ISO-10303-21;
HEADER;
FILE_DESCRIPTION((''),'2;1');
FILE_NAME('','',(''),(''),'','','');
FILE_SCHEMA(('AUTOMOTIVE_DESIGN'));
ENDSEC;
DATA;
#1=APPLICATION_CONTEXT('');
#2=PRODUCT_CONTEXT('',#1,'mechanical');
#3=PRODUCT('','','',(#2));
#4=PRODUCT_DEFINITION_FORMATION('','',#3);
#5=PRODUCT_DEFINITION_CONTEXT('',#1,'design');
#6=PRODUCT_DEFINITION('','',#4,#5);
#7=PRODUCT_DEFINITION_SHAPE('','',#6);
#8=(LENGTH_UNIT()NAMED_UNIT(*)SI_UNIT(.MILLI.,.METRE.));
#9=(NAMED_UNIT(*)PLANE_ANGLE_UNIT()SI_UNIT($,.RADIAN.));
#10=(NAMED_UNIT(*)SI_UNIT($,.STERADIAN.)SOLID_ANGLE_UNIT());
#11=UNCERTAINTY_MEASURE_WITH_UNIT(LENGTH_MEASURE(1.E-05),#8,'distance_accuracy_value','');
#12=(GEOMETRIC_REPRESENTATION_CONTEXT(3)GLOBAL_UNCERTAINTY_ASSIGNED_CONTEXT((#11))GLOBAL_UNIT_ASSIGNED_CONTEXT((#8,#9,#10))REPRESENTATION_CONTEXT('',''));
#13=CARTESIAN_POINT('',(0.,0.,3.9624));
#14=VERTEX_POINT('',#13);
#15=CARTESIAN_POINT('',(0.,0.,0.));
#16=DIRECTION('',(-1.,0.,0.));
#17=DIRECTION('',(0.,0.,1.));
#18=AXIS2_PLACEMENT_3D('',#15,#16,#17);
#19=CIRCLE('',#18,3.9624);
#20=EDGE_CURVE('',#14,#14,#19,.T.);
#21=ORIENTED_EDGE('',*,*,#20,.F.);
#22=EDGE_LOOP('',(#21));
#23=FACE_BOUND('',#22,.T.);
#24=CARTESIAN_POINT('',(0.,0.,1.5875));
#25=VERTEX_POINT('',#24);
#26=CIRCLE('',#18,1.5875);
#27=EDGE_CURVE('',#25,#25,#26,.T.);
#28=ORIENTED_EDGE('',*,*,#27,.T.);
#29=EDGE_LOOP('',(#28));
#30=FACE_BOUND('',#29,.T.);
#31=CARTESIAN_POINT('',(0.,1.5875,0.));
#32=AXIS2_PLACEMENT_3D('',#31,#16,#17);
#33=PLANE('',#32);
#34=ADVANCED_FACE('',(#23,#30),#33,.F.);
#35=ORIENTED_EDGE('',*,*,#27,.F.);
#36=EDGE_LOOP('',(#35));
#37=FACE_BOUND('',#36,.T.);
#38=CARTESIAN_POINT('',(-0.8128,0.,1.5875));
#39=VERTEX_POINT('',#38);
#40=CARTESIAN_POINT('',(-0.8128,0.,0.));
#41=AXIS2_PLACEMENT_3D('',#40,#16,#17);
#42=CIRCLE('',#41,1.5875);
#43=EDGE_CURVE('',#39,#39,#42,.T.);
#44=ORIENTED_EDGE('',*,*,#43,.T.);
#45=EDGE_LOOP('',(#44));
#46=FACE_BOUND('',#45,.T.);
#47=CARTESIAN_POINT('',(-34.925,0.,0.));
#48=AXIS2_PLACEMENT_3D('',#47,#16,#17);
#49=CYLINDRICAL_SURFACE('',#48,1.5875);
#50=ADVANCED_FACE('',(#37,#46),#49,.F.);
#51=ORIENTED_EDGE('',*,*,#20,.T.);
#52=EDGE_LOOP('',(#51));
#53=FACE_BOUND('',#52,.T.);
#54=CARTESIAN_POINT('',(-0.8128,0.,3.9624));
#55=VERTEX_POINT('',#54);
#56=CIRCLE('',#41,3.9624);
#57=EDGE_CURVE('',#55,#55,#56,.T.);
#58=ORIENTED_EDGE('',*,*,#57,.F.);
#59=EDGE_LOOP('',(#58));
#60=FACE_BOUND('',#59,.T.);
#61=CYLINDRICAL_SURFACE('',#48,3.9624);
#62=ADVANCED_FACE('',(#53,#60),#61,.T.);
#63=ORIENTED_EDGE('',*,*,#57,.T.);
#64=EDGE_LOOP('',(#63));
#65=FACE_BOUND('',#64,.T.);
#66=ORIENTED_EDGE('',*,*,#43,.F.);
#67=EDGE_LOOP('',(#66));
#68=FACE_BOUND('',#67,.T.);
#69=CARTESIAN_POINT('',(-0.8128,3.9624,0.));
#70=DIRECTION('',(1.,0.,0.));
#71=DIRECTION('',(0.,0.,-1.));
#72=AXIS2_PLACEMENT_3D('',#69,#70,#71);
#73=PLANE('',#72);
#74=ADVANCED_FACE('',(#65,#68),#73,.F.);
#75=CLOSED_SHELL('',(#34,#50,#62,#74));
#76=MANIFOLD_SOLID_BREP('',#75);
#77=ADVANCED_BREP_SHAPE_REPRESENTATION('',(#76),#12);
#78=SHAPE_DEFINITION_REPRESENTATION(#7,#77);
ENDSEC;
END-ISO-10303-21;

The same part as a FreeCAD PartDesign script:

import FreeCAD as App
import Part
import Sketcher
Q = App.Units.Quantity


def add_polygon(sketch, points):
    """Adds a closed chain of lines whose ends are joined by coincident constraints."""
    first, n = sketch.GeometryCount, len(points)
    for a, b in zip(points, points[1:] + points[:1]):
        sketch.addGeometry(Part.LineSegment(App.Vector(*a, 0), App.Vector(*b, 0)), False)
    for i in range(n):
        sketch.addConstraint(Sketcher.Constraint("Coincident", first + i, 2, first + (i + 1) % n, 1))

doc = App.newDocument("Part")
params = doc.addObject("Spreadsheet::Sheet", "Params")
for row, (alias, value) in enumerate([
    ("sketch1_width", "0.032 in"),
    ("revolution_angle", "360 deg"),
], start=1):
    params.set(f"A{row}", alias)
    params.set(f"B{row}", "=" + value)
    params.setAlias(f"B{row}", alias)

body = doc.addObject("PartDesign::Body", "Body")

# Sketch on XY plane
sketch1 = body.newObject("Sketcher::SketchObject", "Sketch")
sketch1.AttachmentSupport = (doc.getObject("XY_Plane"), [""])
sketch1.MapMode = "FlatFace"
add_polygon(sketch1, [(-0.8128, 3.9624), (-0.8128, 1.5875), (0, 1.5875), (0, 3.9624)])  # lines 0-3
sketch1.addConstraint(Sketcher.Constraint("Vertical", 0))
sketch1.addConstraint(Sketcher.Constraint("Horizontal", 1))
sketch1.addConstraint(Sketcher.Constraint("Vertical", 2))
sketch1.addConstraint(Sketcher.Constraint("Horizontal", 3))
sketch1.addConstraint(Sketcher.Constraint("PointOnObject", 1, 2, -2))
sketch1.addConstraint(Sketcher.Constraint("DistanceX", 1, 1, 1, 2, Q("0.032 in")))
sketch1.addConstraint(Sketcher.Constraint("DistanceY", 0, 2, 0, 1, Q("0.0935 in")))
sketch1.addConstraint(Sketcher.Constraint("DistanceY", -1, 1, 0, 2, Q("0.0625 in")))
sketch1.setExpression("Constraints[9]", "Params.sketch1_width")
revolution = body.newObject("PartDesign::Revolution", "Revolution")
revolution.Profile = sketch1
revolution.ReferenceAxis = (sketch1, ["H_Axis"])
revolution.setExpression("Angle", "Params.revolution_angle")

doc.recompute()
